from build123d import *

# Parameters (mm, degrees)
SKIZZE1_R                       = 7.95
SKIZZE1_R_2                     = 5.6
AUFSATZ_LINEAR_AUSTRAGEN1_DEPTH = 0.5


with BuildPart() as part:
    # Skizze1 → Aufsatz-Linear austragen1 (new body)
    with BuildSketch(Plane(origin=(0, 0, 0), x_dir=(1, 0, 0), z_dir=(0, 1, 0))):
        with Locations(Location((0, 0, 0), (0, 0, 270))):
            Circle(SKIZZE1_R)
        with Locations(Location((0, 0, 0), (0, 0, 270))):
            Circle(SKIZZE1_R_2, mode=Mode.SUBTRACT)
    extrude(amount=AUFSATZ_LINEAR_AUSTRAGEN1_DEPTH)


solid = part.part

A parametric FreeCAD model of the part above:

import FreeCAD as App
import Part
import Sketcher
from FreeCAD import Vector

doc = App.newDocument("Part")
body = doc.addObject("PartDesign::Body", "Body")

sketch1 = body.newObject("Sketcher::SketchObject", "Sketch")
sketch1.AttachmentSupport = (doc.getObject("XZ_Plane"), [""])
sketch1.MapMode = "FlatFace"
sketch1.addGeometry([
    Part.Circle(Vector(0, 0, 0), Vector(0, 0, 1), 8),
    Part.Circle(Vector(0, 0, 0), Vector(0, 0, 1), 6),
], False)
sketch1.addConstraint([
    Sketcher.Constraint("Coincident", 0, 3, -1, 1),
    Sketcher.Constraint("Coincident", 1, 3, -1, 1),
    Sketcher.Constraint("Diameter", 0, 15.9),
    Sketcher.Constraint("Diameter", 1, 11.2),
])
pad1 = body.newObject("PartDesign::Pad", "Pad")
pad1.Profile = sketch1
pad1.Length = 0.5
pad1.Reversed = True

doc.recompute()
